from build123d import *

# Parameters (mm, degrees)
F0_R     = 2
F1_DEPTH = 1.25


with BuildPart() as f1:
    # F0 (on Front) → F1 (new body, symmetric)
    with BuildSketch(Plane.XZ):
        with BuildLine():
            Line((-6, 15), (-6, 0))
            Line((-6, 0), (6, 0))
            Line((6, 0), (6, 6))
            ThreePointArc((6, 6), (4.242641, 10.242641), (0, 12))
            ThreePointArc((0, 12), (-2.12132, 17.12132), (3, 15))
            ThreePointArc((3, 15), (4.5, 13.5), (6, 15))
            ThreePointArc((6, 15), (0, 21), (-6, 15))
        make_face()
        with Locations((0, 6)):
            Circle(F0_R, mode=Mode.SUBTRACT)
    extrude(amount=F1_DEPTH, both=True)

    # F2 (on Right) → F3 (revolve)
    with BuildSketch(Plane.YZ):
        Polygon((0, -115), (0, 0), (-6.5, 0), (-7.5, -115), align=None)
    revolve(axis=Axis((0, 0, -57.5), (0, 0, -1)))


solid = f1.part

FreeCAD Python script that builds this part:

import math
import FreeCAD as App
import Part
import Sketcher
Q = App.Units.Quantity

doc = App.newDocument("Part")
body = doc.addObject("PartDesign::Body", "Body")

# Sketch on XZ plane
sketch1 = body.newObject("Sketcher::SketchObject", "Sketch")
sketch1.AttachmentSupport = (doc.getObject("XZ_Plane"), [""])
sketch1.MapMode = "FlatFace"
sketch1.addGeometry([
    Part.LineSegment(App.Vector(-6, 15, 0), App.Vector(-6, 0, 0)),  # 0
    Part.LineSegment(App.Vector(-6, 0, 0), App.Vector(6, 0, 0)),  # 1
    Part.LineSegment(App.Vector(6, 0, 0), App.Vector(6, 6, 0)),  # 2
    Part.ArcOfCircle(Part.Circle(App.Vector(0, 6, 0), App.Vector(0, 0, 1), 6), math.radians(0), math.radians(90)),  # 3
    Part.ArcOfCircle(Part.Circle(App.Vector(0, 15, 0), App.Vector(0, 0, 1), 3), math.radians(0), math.radians(270)),  # 4
    Part.ArcOfCircle(Part.Circle(App.Vector(4.5, 15, 0), App.Vector(0, 0, 1), 1.5), math.radians(180), math.radians(360)),  # 5
    Part.ArcOfCircle(Part.Circle(App.Vector(0, 15, 0), App.Vector(0, 0, 1), 6), math.radians(0), math.radians(180)),  # 6
    Part.Circle(App.Vector(0, 6, 0), App.Vector(0, 0, 1), 2),  # 7
], False)
sketch1.addConstraint([
    Sketcher.Constraint("Coincident", 0, 2, 1, 1),
    Sketcher.Constraint("Coincident", 1, 2, 2, 1),
    Sketcher.Constraint("Tangent", 2, 2, 3, 1),
    Sketcher.Constraint("Tangent", 3, 2, 4, 2),
    Sketcher.Constraint("Tangent", 4, 1, 5, 1),
    Sketcher.Constraint("Tangent", 5, 2, 6, 1),
    Sketcher.Constraint("Tangent", 6, 2, 0, 1),
    Sketcher.Constraint("Vertical", 0),
    Sketcher.Constraint("Horizontal", 1),
    Sketcher.Constraint("Vertical", 2),
    Sketcher.Constraint("Coincident", 6, 3, 4, 3),
    Sketcher.Constraint("Coincident", 7, 3, 3, 3),
    Sketcher.Constraint("Equal", 3, 6),
    Sketcher.Constraint("Symmetric", 0, 2, 1, 2, -1, 1),
    Sketcher.Constraint("Symmetric", 5, 2, 6, 2, -2),
    Sketcher.Constraint("Diameter", 7, Q("4 mm")),
    Sketcher.Constraint("Radius", 3, Q("5.999999 mm")),
    Sketcher.Constraint("Radius", 4, Q("3 mm")),
    Sketcher.Constraint("DistanceY", 0, 2, 0, 1, Q("15 mm")),
])
pad1 = body.newObject("PartDesign::Pad", "Pad")
pad1.Profile = sketch1
pad1.Length = 2.5
pad1.Midplane = True

# Sketch on YZ plane
sketch2 = body.newObject("Sketcher::SketchObject", "Sketch001")
sketch2.AttachmentSupport = (doc.getObject("YZ_Plane"), [""])
sketch2.MapMode = "FlatFace"
sketch2.addGeometry([
    Part.LineSegment(App.Vector(0, -115, 0), App.Vector(0, 0, 0)),
    Part.LineSegment(App.Vector(0, 0, 0), App.Vector(-6, 0, 0)),
    Part.LineSegment(App.Vector(-6, 0, 0), App.Vector(-8, -115, 0)),
    Part.LineSegment(App.Vector(-8, -115, 0), App.Vector(0, -115, 0)),
], False)
sketch2.addConstraint([
    Sketcher.Constraint("Coincident", 0, 2, 1, 1),
    Sketcher.Constraint("Coincident", 1, 2, 2, 1),
    Sketcher.Constraint("Coincident", 2, 2, 3, 1),
    Sketcher.Constraint("Coincident", 3, 2, 0, 1),
    Sketcher.Constraint("Vertical", 0),
    Sketcher.Constraint("Horizontal", 1),
    Sketcher.Constraint("Horizontal", 3),
    Sketcher.Constraint("Coincident", 0, 2, -1, 1),
    Sketcher.Constraint("DistanceY", 0, 1, 0, 2, Q("115 mm")),
    Sketcher.Constraint("DistanceX", 1, 2, 1, 1, Q("6.5 mm")),
    Sketcher.Constraint("DistanceX", 3, 1, 3, 2, Q("7.5 mm")),
])
revolution = body.newObject("PartDesign::Revolution", "Revolution")
revolution.Profile = sketch2
revolution.ReferenceAxis = (sketch2, ["V_Axis"])
revolution.Angle = 360

doc.recompute()
